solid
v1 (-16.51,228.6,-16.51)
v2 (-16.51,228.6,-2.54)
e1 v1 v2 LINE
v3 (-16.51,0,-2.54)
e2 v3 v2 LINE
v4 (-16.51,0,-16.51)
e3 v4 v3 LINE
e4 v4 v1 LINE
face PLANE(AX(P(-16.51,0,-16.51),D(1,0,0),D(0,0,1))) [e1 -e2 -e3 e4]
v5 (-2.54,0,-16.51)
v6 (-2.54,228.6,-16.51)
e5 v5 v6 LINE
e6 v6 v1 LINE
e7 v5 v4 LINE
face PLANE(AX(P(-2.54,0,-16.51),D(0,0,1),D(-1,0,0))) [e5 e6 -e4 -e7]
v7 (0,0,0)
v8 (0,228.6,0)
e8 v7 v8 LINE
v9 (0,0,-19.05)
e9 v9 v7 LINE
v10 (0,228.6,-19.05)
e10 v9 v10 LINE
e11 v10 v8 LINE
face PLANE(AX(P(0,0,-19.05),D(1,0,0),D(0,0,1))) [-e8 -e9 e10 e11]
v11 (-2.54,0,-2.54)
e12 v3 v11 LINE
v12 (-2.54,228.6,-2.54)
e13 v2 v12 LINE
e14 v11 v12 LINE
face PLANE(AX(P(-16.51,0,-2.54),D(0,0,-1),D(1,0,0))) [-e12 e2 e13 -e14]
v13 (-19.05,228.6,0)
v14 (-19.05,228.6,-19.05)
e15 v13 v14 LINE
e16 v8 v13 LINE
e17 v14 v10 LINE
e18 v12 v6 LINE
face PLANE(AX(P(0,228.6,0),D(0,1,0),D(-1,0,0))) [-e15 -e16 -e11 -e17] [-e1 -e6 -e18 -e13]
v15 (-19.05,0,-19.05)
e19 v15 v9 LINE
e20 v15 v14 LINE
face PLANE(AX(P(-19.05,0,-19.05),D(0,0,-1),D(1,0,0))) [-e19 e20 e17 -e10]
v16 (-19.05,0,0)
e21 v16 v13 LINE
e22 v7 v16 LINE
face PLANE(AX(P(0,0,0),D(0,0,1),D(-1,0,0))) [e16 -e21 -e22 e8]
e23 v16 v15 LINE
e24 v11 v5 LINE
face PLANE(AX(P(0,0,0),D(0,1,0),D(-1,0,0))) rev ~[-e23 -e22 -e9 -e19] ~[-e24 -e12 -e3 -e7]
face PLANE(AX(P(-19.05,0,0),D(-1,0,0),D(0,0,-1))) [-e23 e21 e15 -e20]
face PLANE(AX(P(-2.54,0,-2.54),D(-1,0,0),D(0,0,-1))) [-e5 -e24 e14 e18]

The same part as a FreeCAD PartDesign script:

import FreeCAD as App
import Part
import Sketcher

V = App.Vector
Q = App.Units.Quantity

doc = App.newDocument("Part")
body = doc.addObject("PartDesign::Body", "Body")

sketch1 = body.newObject("Sketcher::SketchObject", "Sketch")
sketch1.AttachmentSupport = (doc.getObject("XZ_Plane"), [""])
sketch1.MapMode = "FlatFace"
sketch1.addGeometry(Part.LineSegment(V(-19, 0, 0), V(0, 0, 0)), False)
sketch1.addGeometry(Part.LineSegment(V(0, 0, 0), V(0, -19, 0)), False)
sketch1.addGeometry(Part.LineSegment(V(0, -19, 0), V(-19, -19, 0)), False)
sketch1.addGeometry(Part.LineSegment(V(-19, -19, 0), V(-19, 0, 0)), False)
sketch1.addGeometry(Part.LineSegment(V(-17, -3, 0), V(-17, -17, 0)), False)
sketch1.addGeometry(Part.LineSegment(V(-17, -17, 0), V(-3, -17, 0)), False)
sketch1.addGeometry(Part.LineSegment(V(-3, -17, 0), V(-3, -3, 0)), False)
sketch1.addGeometry(Part.LineSegment(V(-3, -3, 0), V(-17, -3, 0)), False)
sketch1.addConstraint(Sketcher.Constraint("Coincident", 0, 2, 1, 1))
sketch1.addConstraint(Sketcher.Constraint("Coincident", 1, 2, 2, 1))
sketch1.addConstraint(Sketcher.Constraint("Coincident", 2, 2, 3, 1))
sketch1.addConstraint(Sketcher.Constraint("Coincident", 3, 2, 0, 1))
sketch1.addConstraint(Sketcher.Constraint("Coincident", 4, 2, 5, 1))
sketch1.addConstraint(Sketcher.Constraint("Coincident", 5, 2, 6, 1))
sketch1.addConstraint(Sketcher.Constraint("Coincident", 6, 2, 7, 1))
sketch1.addConstraint(Sketcher.Constraint("Coincident", 7, 2, 4, 1))
sketch1.addConstraint(Sketcher.Constraint("Horizontal", 0))
sketch1.addConstraint(Sketcher.Constraint("Vertical", 1))
sketch1.addConstraint(Sketcher.Constraint("Horizontal", 2))
sketch1.addConstraint(Sketcher.Constraint("Vertical", 3))
sketch1.addConstraint(Sketcher.Constraint("Vertical", 4))
sketch1.addConstraint(Sketcher.Constraint("Horizontal", 5))
sketch1.addConstraint(Sketcher.Constraint("Vertical", 6))
sketch1.addConstraint(Sketcher.Constraint("Horizontal", 7))
sketch1.addConstraint(Sketcher.Constraint("Coincident", 0, 2, -1, 1))
sketch1.addConstraint(Sketcher.Constraint("Equal", 2, 1))
sketch1.addConstraint(Sketcher.Constraint("Equal", 7, 4))
sketch1.addConstraint(Sketcher.Constraint("DistanceX", 0, 1, 0, 2, Q("0.75 in")))
sketch1.addConstraint(Sketcher.Constraint("DistanceX", 5, 2, -1, 1, Q("0.1 in")))
sketch1.addConstraint(Sketcher.Constraint("DistanceY", 6, 2, -1, 1, Q("0.1 in")))
sketch1.addConstraint(Sketcher.Constraint("DistanceX", 2, 2, 4, 2, Q("0.1 in")))
pad1 = body.newObject("PartDesign::Pad", "Pad")
pad1.Profile = sketch1
pad1.Length = Q("9 in")
pad1.Reversed = True

doc.recompute()
